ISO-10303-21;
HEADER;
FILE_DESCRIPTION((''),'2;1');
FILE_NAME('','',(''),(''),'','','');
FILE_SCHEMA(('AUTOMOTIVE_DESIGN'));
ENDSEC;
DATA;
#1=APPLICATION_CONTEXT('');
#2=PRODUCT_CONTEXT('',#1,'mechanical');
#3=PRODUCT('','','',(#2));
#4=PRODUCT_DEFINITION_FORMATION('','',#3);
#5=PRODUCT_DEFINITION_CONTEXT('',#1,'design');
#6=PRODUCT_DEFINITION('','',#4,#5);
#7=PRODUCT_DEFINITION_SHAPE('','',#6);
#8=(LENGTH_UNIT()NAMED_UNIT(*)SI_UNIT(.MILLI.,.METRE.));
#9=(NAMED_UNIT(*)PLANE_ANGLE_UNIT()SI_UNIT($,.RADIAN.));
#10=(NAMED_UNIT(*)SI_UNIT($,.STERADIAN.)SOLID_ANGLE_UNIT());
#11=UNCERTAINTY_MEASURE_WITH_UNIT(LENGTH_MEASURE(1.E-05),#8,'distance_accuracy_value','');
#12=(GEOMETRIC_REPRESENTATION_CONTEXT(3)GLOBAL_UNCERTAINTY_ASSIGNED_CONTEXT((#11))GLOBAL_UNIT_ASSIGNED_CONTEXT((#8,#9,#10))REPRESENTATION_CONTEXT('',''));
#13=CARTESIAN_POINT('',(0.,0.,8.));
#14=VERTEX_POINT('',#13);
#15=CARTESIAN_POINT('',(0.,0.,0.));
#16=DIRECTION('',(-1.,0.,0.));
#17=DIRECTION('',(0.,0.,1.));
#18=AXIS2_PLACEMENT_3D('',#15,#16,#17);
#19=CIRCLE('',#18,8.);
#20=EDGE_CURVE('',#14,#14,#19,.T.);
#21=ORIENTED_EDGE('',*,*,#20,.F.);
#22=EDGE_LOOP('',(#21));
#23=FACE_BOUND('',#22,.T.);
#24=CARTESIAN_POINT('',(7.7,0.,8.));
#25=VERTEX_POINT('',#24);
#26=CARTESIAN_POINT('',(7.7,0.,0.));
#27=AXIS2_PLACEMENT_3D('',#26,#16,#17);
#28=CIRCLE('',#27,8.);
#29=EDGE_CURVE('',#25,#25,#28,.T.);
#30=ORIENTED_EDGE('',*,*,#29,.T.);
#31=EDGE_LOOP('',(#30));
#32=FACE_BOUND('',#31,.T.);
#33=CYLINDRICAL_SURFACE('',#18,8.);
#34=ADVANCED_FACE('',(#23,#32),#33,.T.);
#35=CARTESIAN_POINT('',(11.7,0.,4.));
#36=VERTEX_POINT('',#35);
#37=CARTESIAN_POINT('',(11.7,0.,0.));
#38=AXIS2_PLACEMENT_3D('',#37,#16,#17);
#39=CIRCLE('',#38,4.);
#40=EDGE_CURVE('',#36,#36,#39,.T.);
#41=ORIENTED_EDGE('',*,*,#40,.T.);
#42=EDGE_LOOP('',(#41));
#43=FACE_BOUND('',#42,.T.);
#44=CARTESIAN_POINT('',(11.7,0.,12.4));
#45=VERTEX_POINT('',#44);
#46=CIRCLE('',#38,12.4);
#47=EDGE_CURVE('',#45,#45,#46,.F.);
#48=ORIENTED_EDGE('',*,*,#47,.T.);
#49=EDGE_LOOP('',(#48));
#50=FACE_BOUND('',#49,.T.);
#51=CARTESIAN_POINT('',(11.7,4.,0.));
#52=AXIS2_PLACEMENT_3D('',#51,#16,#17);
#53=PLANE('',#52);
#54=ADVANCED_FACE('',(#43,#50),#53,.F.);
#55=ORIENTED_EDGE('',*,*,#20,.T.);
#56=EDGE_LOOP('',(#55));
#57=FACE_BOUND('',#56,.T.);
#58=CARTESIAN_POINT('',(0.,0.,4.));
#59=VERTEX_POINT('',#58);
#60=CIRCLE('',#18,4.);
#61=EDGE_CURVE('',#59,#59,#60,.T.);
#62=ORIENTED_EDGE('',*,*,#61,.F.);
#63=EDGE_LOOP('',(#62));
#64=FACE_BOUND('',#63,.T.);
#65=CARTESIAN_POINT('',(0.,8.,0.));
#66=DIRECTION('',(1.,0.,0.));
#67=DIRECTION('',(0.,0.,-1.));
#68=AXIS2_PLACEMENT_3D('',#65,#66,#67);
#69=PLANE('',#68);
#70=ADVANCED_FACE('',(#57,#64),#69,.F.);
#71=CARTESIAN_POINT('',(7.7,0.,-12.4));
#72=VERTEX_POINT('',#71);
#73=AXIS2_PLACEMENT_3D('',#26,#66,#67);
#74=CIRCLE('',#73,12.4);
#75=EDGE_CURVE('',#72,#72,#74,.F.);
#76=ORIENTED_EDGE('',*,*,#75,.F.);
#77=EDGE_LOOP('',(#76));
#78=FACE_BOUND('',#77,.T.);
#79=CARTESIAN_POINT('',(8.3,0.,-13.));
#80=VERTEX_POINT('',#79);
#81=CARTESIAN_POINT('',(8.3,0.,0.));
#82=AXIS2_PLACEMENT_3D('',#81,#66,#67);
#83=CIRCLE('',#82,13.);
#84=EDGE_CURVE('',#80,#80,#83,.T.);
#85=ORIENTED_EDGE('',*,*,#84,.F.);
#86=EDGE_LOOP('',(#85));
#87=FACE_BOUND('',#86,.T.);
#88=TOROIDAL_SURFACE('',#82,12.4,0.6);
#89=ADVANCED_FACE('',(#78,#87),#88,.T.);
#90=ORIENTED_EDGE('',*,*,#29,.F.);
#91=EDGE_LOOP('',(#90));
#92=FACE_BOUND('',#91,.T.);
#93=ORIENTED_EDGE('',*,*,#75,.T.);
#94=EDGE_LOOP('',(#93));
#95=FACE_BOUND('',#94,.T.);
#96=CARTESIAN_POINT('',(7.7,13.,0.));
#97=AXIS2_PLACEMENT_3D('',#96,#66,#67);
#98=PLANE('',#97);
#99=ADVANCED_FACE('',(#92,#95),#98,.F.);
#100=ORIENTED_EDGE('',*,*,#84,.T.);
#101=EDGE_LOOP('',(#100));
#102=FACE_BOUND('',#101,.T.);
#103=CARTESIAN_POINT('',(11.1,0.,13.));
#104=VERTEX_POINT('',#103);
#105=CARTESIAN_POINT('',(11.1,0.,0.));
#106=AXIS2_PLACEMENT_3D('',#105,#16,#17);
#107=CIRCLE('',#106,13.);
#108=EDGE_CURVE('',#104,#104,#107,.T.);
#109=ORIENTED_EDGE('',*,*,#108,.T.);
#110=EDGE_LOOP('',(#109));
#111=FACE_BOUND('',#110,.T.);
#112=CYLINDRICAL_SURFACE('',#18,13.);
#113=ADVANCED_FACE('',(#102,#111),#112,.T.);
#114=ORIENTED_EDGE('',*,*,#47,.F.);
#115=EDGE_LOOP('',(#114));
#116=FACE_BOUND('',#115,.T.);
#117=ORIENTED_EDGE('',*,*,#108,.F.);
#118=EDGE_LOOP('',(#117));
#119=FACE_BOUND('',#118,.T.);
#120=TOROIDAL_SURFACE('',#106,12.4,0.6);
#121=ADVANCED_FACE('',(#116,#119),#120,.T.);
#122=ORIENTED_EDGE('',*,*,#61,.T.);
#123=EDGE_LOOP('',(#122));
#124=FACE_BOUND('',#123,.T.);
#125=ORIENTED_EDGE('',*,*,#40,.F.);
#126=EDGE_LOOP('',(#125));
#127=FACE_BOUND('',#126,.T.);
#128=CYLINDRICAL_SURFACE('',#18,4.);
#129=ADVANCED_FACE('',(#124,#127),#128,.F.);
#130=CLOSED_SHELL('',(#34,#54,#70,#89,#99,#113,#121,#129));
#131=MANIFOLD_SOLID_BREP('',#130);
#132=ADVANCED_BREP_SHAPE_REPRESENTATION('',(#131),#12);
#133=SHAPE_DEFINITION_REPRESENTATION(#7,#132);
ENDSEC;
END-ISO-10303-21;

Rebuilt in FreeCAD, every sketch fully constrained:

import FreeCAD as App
import Part
import Sketcher
from FreeCAD import Vector
Q = App.Units.Quantity


def edges_at(feature, points):
    """Names of the edges that pass closest to the given points."""
    edges = feature.Shape.Edges
    near = lambda p: min(range(len(edges)), key=lambda i: edges[i].distToShape(Part.Vertex(*p))[0])
    return sorted({f"Edge{near(p) + 1}" for p in points})


def add_polygon(sketch, points):
    """Adds a closed chain of lines whose ends are joined by coincident constraints."""
    first, n = sketch.GeometryCount, len(points)
    for a, b in zip(points, points[1:] + points[:1]):
        sketch.addGeometry(Part.LineSegment(App.Vector(*a, 0), App.Vector(*b, 0)), False)
    for i in range(n):
        sketch.addConstraint(Sketcher.Constraint("Coincident", first + i, 2, first + (i + 1) % n, 1))

doc = App.newDocument("Part")
body = doc.addObject("PartDesign::Body", "Body")

# Sketch on XY plane
sketch1 = doc.addObject("Sketcher::SketchObject", "Sketch")
body.addObject(sketch1)
sketch1.AttachmentSupport = (doc.XY_Plane, [""])
sketch1.MapMode = "FlatFace"
add_polygon(sketch1, [(0, 4), (11.7, 4), (11.7, 13), (7.7, 13), (7.7, 8), (0, 8)])  # lines 0-5
sketch1.addConstraint([
    Sketcher.Constraint("Horizontal", 0),
    Sketcher.Constraint("Vertical", 1),
    Sketcher.Constraint("Horizontal", 2),
    Sketcher.Constraint("Vertical", 3),
    Sketcher.Constraint("Horizontal", 4),
    Sketcher.Constraint("Vertical", 5),
    Sketcher.Constraint("PointOnObject", 4, 2, -2),
    Sketcher.Constraint("Equal", 2, 5),
    Sketcher.Constraint("DistanceX", 2, 2, 2, 1, Q("4 mm")),
    Sketcher.Constraint("DistanceY", 1, 1, 1, 2, Q("9 mm")),
    Sketcher.Constraint("DistanceX", 0, 1, 0, 2, Q("11.7 mm")),
    Sketcher.Constraint("DistanceY", -1, 1, 0, 2, Q("4 mm")),
])
revolution = doc.addObject("PartDesign::Revolution", "Revolution")
body.addObject(revolution)
revolution.Profile = sketch1
revolution.ReferenceAxis = (sketch1, ["H_Axis"])
revolution.Angle = 360
doc.recompute()

fillet = doc.addObject("PartDesign::Fillet", "Fillet")
body.addObject(fillet)
fillet.Base = (revolution, edges_at(revolution, [(7.7, 0, -13), (11.7, 0, -13)]))
fillet.Radius = 0.6

doc.recompute()
